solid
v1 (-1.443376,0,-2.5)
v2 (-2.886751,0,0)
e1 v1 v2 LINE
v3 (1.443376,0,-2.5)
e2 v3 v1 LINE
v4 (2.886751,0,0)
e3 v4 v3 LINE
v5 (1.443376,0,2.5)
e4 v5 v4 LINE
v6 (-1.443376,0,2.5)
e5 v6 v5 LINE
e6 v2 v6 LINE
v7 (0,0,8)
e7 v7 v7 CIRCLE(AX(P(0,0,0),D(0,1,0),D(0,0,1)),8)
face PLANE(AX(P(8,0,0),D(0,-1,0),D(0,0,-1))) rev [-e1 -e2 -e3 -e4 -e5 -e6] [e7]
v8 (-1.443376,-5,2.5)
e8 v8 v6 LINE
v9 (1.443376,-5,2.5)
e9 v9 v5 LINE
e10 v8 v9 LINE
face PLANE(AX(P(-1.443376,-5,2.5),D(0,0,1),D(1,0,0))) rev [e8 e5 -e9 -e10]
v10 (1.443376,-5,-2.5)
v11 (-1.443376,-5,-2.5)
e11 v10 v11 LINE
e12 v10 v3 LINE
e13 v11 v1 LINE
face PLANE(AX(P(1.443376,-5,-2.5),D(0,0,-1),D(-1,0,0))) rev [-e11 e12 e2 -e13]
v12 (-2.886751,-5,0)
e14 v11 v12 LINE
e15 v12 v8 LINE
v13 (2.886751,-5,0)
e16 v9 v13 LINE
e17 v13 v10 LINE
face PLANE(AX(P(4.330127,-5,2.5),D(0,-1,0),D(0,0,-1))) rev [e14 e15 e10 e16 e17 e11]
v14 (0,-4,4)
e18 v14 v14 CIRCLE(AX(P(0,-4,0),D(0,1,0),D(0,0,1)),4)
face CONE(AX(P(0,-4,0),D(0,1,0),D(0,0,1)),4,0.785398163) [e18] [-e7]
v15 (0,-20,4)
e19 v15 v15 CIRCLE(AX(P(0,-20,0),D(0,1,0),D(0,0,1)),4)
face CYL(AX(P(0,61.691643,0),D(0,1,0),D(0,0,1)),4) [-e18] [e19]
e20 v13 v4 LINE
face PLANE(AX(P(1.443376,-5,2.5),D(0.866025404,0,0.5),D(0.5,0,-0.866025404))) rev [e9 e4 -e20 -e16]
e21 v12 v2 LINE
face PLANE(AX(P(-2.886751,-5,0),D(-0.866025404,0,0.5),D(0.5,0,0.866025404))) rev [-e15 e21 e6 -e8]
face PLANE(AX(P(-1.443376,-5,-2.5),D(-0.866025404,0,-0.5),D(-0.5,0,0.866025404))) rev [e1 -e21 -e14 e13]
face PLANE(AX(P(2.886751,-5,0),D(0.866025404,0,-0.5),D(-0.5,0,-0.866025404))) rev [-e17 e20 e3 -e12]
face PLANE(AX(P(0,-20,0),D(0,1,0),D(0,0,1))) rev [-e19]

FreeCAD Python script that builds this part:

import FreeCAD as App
import Part
import Sketcher
from FreeCAD import Vector
Q = App.Units.Quantity


def add_polygon(sketch, points):
    """Adds a closed chain of lines whose ends are joined by coincident constraints."""
    first, n = sketch.GeometryCount, len(points)
    for a, b in zip(points, points[1:] + points[:1]):
        sketch.addGeometry(Part.LineSegment(App.Vector(*a, 0), App.Vector(*b, 0)), False)
    for i in range(n):
        sketch.addConstraint(Sketcher.Constraint("Coincident", first + i, 2, first + (i + 1) % n, 1))

doc = App.newDocument("Part")
params = doc.addObject("Spreadsheet::Sheet", "Params")
for row, (alias, value) in enumerate([
    ("sketch1_width", "4 mm"),
    ("sketch1_width2", "8 mm"),
    ("sketch1_height", "16 mm"),
    ("sketch1_height2", "20 mm"),
    ("revolution_angle", "360 deg"),
    ("pocket1_length", "5 mm"),
], start=1):
    params.set(f"A{row}", alias)
    params.set(f"B{row}", "=" + value)
    params.setAlias(f"B{row}", alias)

body = doc.addObject("PartDesign::Body", "Body")

# Sketch on XY plane
sketch1 = body.newObject("Sketcher::SketchObject", "Sketch")
sketch1.AttachmentSupport = (doc.getObject("XY_Plane"), [""])
sketch1.MapMode = "FlatFace"
add_polygon(sketch1, [(0, -20), (4, -20), (4, -4), (8, 0), (0, 0)])  # lines 0-4
sketch1.addConstraint(Sketcher.Constraint("Horizontal", 0))
sketch1.addConstraint(Sketcher.Constraint("Vertical", 1))
sketch1.addConstraint(Sketcher.Constraint("Horizontal", 3))
sketch1.addConstraint(Sketcher.Constraint("Vertical", 4))
sketch1.addConstraint(Sketcher.Constraint("Coincident", 3, 2, -1, 1))
sketch1.addConstraint(Sketcher.Constraint("DistanceX", 0, 1, 0, 2, Q("4 mm")))
sketch1.addConstraint(Sketcher.Constraint("DistanceX", 3, 2, 3, 1, Q("8 mm")))
sketch1.addConstraint(Sketcher.Constraint("DistanceY", 1, 1, 1, 2, Q("16 mm")))
sketch1.addConstraint(Sketcher.Constraint("DistanceY", 4, 2, 4, 1, Q("20 mm")))
sketch1.setExpression("Constraints[10]", "Params.sketch1_width")
sketch1.setExpression("Constraints[11]", "Params.sketch1_width2")
sketch1.setExpression("Constraints[12]", "Params.sketch1_height")
sketch1.setExpression("Constraints[13]", "Params.sketch1_height2")
revolution = body.newObject("PartDesign::Revolution", "Revolution")
revolution.Profile = sketch1
revolution.ReferenceAxis = (sketch1, ["V_Axis"])
revolution.setExpression("Angle", "Params.revolution_angle")

# Sketch on XZ plane
sketch2 = body.newObject("Sketcher::SketchObject", "Sketch001")
sketch2.AttachmentSupport = (doc.getObject("XZ_Plane"), [""])
sketch2.MapMode = "FlatFace"
add_polygon(sketch2, [(1.4, -2.5), (-1.4, -2.5), (-2.9, 0), (-1.4, 2.5), (1.4, 2.5), (2.9, 0)])  # lines 0-5
sketch2.addConstraint(Sketcher.Constraint("Horizontal", 0))
sketch2.addConstraint(Sketcher.Constraint("Horizontal", 3))
sketch2.addConstraint(Sketcher.Constraint("Symmetric", 0, 2, 3, 2, -1, 1))
sketch2.addConstraint(Sketcher.Constraint("Symmetric", 1, 2, 4, 2, -1, 1))
sketch2.addConstraint(Sketcher.Constraint("PointOnObject", 1, 2, -1))
sketch2.addConstraint(Sketcher.Constraint("Parallel", 2, 5))
sketch2.addConstraint(Sketcher.Constraint("Vertical", 0, 2, 2, 2))
sketch2.addConstraint(Sketcher.Constraint("Angle", 1, Q("120 deg")))
sketch2.addConstraint(Sketcher.Constraint("DistanceY", 0, 2, 2, 2, Q("5 mm")))
sketch2.addConstraint(Sketcher.Constraint("DistanceX", 0, 2, 0, 1, Q("2.886751 mm")))
pocket1 = body.newObject("PartDesign::Pocket", "Pocket")
pocket1.Profile = sketch2
pocket1.setExpression("Length", "Params.pocket1_length")
pocket1.Reversed = True

doc.recompute()
